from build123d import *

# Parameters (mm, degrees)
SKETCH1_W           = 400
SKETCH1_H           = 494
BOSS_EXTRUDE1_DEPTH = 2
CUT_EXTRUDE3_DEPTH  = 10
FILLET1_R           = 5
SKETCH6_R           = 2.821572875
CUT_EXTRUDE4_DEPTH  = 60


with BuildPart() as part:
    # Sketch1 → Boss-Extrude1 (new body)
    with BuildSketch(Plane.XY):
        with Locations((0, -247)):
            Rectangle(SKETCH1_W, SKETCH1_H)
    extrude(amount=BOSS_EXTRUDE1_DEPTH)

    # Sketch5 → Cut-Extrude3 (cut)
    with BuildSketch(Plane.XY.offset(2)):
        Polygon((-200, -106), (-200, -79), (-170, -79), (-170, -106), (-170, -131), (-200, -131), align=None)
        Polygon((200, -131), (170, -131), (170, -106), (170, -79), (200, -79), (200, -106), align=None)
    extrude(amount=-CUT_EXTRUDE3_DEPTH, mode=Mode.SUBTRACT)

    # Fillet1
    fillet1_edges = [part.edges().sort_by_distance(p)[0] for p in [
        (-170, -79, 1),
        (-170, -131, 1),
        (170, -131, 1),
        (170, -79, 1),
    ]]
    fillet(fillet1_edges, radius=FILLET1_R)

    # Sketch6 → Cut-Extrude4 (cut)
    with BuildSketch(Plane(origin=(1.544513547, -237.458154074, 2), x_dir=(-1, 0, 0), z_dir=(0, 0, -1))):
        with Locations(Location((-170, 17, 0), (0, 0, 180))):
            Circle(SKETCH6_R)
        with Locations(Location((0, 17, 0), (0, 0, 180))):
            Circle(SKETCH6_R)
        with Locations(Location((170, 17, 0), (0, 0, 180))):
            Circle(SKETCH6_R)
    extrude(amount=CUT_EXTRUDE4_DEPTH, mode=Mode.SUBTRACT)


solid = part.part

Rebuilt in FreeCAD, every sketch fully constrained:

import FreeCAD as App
import Part
import Sketcher
from FreeCAD import Vector


def edges_at(feature, points):
    """Names of the edges that pass closest to the given points."""
    edges = feature.Shape.Edges
    near = lambda p: min(range(len(edges)), key=lambda i: edges[i].distToShape(Part.Vertex(*p))[0])
    return sorted({f"Edge{near(p) + 1}" for p in points})

doc = App.newDocument("Part")
body = doc.addObject("PartDesign::Body", "Body")

sketch1 = body.newObject("Sketcher::SketchObject", "Sketch")
sketch1.AttachmentSupport = (doc.getObject("XY_Plane"), [""])
sketch1.MapMode = "FlatFace"
sketch1.addGeometry([
    Part.LineSegment(Vector(-200, 0, 0), Vector(-200, -494, 0)),
    Part.LineSegment(Vector(-200, -494, 0), Vector(200, -494, 0)),
    Part.LineSegment(Vector(200, -494, 0), Vector(200, 0, 0)),
    Part.LineSegment(Vector(200, 0, 0), Vector(-200, 0, 0)),
], False)
sketch1.addConstraint([
    Sketcher.Constraint("Coincident", 0, 2, 1, 1),
    Sketcher.Constraint("Coincident", 1, 2, 2, 1),
    Sketcher.Constraint("Coincident", 2, 2, 3, 1),
    Sketcher.Constraint("Coincident", 3, 2, 0, 1),
    Sketcher.Constraint("Vertical", 0),
    Sketcher.Constraint("Horizontal", 1),
    Sketcher.Constraint("Vertical", 2),
    Sketcher.Constraint("Horizontal", 3),
    Sketcher.Constraint("Symmetric", 2, 2, 3, 2, -1, 1),
    Sketcher.Constraint("DistanceX", 1, 1, 1, 2, 400.0),
    Sketcher.Constraint("DistanceY", 0, 2, 0, 1, 494.0),
])
pad1 = body.newObject("PartDesign::Pad", "Pad")
pad1.Profile = sketch1
pad1.Length = 2

sketch2 = body.newObject("Sketcher::SketchObject", "Sketch001")
sketch2.AttachmentSupport = (doc.getObject("XY_Plane"), [""])
sketch2.MapMode = "FlatFace"
sketch2.AttachmentOffset = App.Placement(Vector(0, 0, 2), App.Rotation())
sketch2.addGeometry([
    Part.LineSegment(Vector(-200, -79, 0), Vector(-200, -131, 0)),
    Part.LineSegment(Vector(-200, -131, 0), Vector(-170, -131, 0)),
    Part.LineSegment(Vector(-170, -131, 0), Vector(-170, -79, 0)),
    Part.LineSegment(Vector(-170, -79, 0), Vector(-200, -79, 0)),
    Part.LineSegment(Vector(170, -131, 0), Vector(200, -131, 0)),
    Part.LineSegment(Vector(200, -131, 0), Vector(200, -79, 0)),
    Part.LineSegment(Vector(200, -79, 0), Vector(170, -79, 0)),
    Part.LineSegment(Vector(170, -79, 0), Vector(170, -131, 0)),
], False)
sketch2.addConstraint([
    Sketcher.Constraint("Coincident", 0, 2, 1, 1),
    Sketcher.Constraint("Coincident", 1, 2, 2, 1),
    Sketcher.Constraint("Coincident", 2, 2, 3, 1),
    Sketcher.Constraint("Coincident", 3, 2, 0, 1),
    Sketcher.Constraint("Coincident", 4, 2, 5, 1),
    Sketcher.Constraint("Coincident", 5, 2, 6, 1),
    Sketcher.Constraint("Coincident", 6, 2, 7, 1),
    Sketcher.Constraint("Coincident", 7, 2, 4, 1),
    Sketcher.Constraint("Vertical", 0),
    Sketcher.Constraint("Horizontal", 1),
    Sketcher.Constraint("Vertical", 2),
    Sketcher.Constraint("Horizontal", 3),
    Sketcher.Constraint("Horizontal", 4),
    Sketcher.Constraint("Vertical", 5),
    Sketcher.Constraint("Horizontal", 6),
    Sketcher.Constraint("Vertical", 7),
    Sketcher.Constraint("Symmetric", 0, 2, 4, 2, -2),
    Sketcher.Constraint("Symmetric", 2, 2, 6, 2, -2),
    Sketcher.Constraint("DistanceX", 1, 1, 1, 2, 30.0),
    Sketcher.Constraint("DistanceY", 0, 2, 0, 1, 52.0),
    Sketcher.Constraint("DistanceX", 0, 2, -1, 1, 200.0),
    Sketcher.Constraint("DistanceY", 0, 2, -1, 1, 131.0),
])
pocket1 = body.newObject("PartDesign::Pocket", "Pocket")
pocket1.Profile = sketch2
pocket1.Length = 10
doc.recompute()

fillet = body.newObject("PartDesign::Fillet", "Fillet")
fillet.Base = (pocket1, edges_at(pocket1, [
    (-170, -79, 1),
    (-170, -131, 1),
    (170, -131, 1),
    (170, -79, 1),
]))
fillet.Radius = 5

sketch3 = body.newObject("Sketcher::SketchObject", "Sketch002")
sketch3.AttachmentSupport = (doc.getObject("XY_Plane"), [""])
sketch3.MapMode = "FlatFace"
sketch3.AttachmentOffset = App.Placement(Vector(0, 0, 2), App.Rotation())
sketch3.addGeometry([
    Part.Circle(Vector(171.5, -220.5, 0), Vector(0, 0, 1), 2.8),
    Part.Circle(Vector(1.5, -220.5, 0), Vector(0, 0, 1), 2.8),
    Part.Circle(Vector(-168.5, -220.5, 0), Vector(0, 0, 1), 2.8),
], False)
sketch3.addConstraint([
    Sketcher.Constraint("Equal", 0, 1),
    Sketcher.Constraint("Equal", 1, 2),
    Sketcher.Constraint("Horizontal", 0, 3, 1, 3),
    Sketcher.Constraint("Horizontal", 1, 3, 2, 3),
    Sketcher.Constraint("DistanceX", 1, 3, 0, 3, 170.0),
    Sketcher.Constraint("DistanceX", 2, 3, 1, 3, 170.0),
    Sketcher.Constraint("Diameter", 0, 5.643146),
    Sketcher.Constraint("DistanceX", -1, 1, 0, 3, 171.544514),
    Sketcher.Constraint("DistanceY", 0, 3, -1, 1, 220.458154),
])
pocket2 = body.newObject("PartDesign::Pocket", "Pocket001")
pocket2.Profile = sketch3
pocket2.Length = 60

doc.recompute()
